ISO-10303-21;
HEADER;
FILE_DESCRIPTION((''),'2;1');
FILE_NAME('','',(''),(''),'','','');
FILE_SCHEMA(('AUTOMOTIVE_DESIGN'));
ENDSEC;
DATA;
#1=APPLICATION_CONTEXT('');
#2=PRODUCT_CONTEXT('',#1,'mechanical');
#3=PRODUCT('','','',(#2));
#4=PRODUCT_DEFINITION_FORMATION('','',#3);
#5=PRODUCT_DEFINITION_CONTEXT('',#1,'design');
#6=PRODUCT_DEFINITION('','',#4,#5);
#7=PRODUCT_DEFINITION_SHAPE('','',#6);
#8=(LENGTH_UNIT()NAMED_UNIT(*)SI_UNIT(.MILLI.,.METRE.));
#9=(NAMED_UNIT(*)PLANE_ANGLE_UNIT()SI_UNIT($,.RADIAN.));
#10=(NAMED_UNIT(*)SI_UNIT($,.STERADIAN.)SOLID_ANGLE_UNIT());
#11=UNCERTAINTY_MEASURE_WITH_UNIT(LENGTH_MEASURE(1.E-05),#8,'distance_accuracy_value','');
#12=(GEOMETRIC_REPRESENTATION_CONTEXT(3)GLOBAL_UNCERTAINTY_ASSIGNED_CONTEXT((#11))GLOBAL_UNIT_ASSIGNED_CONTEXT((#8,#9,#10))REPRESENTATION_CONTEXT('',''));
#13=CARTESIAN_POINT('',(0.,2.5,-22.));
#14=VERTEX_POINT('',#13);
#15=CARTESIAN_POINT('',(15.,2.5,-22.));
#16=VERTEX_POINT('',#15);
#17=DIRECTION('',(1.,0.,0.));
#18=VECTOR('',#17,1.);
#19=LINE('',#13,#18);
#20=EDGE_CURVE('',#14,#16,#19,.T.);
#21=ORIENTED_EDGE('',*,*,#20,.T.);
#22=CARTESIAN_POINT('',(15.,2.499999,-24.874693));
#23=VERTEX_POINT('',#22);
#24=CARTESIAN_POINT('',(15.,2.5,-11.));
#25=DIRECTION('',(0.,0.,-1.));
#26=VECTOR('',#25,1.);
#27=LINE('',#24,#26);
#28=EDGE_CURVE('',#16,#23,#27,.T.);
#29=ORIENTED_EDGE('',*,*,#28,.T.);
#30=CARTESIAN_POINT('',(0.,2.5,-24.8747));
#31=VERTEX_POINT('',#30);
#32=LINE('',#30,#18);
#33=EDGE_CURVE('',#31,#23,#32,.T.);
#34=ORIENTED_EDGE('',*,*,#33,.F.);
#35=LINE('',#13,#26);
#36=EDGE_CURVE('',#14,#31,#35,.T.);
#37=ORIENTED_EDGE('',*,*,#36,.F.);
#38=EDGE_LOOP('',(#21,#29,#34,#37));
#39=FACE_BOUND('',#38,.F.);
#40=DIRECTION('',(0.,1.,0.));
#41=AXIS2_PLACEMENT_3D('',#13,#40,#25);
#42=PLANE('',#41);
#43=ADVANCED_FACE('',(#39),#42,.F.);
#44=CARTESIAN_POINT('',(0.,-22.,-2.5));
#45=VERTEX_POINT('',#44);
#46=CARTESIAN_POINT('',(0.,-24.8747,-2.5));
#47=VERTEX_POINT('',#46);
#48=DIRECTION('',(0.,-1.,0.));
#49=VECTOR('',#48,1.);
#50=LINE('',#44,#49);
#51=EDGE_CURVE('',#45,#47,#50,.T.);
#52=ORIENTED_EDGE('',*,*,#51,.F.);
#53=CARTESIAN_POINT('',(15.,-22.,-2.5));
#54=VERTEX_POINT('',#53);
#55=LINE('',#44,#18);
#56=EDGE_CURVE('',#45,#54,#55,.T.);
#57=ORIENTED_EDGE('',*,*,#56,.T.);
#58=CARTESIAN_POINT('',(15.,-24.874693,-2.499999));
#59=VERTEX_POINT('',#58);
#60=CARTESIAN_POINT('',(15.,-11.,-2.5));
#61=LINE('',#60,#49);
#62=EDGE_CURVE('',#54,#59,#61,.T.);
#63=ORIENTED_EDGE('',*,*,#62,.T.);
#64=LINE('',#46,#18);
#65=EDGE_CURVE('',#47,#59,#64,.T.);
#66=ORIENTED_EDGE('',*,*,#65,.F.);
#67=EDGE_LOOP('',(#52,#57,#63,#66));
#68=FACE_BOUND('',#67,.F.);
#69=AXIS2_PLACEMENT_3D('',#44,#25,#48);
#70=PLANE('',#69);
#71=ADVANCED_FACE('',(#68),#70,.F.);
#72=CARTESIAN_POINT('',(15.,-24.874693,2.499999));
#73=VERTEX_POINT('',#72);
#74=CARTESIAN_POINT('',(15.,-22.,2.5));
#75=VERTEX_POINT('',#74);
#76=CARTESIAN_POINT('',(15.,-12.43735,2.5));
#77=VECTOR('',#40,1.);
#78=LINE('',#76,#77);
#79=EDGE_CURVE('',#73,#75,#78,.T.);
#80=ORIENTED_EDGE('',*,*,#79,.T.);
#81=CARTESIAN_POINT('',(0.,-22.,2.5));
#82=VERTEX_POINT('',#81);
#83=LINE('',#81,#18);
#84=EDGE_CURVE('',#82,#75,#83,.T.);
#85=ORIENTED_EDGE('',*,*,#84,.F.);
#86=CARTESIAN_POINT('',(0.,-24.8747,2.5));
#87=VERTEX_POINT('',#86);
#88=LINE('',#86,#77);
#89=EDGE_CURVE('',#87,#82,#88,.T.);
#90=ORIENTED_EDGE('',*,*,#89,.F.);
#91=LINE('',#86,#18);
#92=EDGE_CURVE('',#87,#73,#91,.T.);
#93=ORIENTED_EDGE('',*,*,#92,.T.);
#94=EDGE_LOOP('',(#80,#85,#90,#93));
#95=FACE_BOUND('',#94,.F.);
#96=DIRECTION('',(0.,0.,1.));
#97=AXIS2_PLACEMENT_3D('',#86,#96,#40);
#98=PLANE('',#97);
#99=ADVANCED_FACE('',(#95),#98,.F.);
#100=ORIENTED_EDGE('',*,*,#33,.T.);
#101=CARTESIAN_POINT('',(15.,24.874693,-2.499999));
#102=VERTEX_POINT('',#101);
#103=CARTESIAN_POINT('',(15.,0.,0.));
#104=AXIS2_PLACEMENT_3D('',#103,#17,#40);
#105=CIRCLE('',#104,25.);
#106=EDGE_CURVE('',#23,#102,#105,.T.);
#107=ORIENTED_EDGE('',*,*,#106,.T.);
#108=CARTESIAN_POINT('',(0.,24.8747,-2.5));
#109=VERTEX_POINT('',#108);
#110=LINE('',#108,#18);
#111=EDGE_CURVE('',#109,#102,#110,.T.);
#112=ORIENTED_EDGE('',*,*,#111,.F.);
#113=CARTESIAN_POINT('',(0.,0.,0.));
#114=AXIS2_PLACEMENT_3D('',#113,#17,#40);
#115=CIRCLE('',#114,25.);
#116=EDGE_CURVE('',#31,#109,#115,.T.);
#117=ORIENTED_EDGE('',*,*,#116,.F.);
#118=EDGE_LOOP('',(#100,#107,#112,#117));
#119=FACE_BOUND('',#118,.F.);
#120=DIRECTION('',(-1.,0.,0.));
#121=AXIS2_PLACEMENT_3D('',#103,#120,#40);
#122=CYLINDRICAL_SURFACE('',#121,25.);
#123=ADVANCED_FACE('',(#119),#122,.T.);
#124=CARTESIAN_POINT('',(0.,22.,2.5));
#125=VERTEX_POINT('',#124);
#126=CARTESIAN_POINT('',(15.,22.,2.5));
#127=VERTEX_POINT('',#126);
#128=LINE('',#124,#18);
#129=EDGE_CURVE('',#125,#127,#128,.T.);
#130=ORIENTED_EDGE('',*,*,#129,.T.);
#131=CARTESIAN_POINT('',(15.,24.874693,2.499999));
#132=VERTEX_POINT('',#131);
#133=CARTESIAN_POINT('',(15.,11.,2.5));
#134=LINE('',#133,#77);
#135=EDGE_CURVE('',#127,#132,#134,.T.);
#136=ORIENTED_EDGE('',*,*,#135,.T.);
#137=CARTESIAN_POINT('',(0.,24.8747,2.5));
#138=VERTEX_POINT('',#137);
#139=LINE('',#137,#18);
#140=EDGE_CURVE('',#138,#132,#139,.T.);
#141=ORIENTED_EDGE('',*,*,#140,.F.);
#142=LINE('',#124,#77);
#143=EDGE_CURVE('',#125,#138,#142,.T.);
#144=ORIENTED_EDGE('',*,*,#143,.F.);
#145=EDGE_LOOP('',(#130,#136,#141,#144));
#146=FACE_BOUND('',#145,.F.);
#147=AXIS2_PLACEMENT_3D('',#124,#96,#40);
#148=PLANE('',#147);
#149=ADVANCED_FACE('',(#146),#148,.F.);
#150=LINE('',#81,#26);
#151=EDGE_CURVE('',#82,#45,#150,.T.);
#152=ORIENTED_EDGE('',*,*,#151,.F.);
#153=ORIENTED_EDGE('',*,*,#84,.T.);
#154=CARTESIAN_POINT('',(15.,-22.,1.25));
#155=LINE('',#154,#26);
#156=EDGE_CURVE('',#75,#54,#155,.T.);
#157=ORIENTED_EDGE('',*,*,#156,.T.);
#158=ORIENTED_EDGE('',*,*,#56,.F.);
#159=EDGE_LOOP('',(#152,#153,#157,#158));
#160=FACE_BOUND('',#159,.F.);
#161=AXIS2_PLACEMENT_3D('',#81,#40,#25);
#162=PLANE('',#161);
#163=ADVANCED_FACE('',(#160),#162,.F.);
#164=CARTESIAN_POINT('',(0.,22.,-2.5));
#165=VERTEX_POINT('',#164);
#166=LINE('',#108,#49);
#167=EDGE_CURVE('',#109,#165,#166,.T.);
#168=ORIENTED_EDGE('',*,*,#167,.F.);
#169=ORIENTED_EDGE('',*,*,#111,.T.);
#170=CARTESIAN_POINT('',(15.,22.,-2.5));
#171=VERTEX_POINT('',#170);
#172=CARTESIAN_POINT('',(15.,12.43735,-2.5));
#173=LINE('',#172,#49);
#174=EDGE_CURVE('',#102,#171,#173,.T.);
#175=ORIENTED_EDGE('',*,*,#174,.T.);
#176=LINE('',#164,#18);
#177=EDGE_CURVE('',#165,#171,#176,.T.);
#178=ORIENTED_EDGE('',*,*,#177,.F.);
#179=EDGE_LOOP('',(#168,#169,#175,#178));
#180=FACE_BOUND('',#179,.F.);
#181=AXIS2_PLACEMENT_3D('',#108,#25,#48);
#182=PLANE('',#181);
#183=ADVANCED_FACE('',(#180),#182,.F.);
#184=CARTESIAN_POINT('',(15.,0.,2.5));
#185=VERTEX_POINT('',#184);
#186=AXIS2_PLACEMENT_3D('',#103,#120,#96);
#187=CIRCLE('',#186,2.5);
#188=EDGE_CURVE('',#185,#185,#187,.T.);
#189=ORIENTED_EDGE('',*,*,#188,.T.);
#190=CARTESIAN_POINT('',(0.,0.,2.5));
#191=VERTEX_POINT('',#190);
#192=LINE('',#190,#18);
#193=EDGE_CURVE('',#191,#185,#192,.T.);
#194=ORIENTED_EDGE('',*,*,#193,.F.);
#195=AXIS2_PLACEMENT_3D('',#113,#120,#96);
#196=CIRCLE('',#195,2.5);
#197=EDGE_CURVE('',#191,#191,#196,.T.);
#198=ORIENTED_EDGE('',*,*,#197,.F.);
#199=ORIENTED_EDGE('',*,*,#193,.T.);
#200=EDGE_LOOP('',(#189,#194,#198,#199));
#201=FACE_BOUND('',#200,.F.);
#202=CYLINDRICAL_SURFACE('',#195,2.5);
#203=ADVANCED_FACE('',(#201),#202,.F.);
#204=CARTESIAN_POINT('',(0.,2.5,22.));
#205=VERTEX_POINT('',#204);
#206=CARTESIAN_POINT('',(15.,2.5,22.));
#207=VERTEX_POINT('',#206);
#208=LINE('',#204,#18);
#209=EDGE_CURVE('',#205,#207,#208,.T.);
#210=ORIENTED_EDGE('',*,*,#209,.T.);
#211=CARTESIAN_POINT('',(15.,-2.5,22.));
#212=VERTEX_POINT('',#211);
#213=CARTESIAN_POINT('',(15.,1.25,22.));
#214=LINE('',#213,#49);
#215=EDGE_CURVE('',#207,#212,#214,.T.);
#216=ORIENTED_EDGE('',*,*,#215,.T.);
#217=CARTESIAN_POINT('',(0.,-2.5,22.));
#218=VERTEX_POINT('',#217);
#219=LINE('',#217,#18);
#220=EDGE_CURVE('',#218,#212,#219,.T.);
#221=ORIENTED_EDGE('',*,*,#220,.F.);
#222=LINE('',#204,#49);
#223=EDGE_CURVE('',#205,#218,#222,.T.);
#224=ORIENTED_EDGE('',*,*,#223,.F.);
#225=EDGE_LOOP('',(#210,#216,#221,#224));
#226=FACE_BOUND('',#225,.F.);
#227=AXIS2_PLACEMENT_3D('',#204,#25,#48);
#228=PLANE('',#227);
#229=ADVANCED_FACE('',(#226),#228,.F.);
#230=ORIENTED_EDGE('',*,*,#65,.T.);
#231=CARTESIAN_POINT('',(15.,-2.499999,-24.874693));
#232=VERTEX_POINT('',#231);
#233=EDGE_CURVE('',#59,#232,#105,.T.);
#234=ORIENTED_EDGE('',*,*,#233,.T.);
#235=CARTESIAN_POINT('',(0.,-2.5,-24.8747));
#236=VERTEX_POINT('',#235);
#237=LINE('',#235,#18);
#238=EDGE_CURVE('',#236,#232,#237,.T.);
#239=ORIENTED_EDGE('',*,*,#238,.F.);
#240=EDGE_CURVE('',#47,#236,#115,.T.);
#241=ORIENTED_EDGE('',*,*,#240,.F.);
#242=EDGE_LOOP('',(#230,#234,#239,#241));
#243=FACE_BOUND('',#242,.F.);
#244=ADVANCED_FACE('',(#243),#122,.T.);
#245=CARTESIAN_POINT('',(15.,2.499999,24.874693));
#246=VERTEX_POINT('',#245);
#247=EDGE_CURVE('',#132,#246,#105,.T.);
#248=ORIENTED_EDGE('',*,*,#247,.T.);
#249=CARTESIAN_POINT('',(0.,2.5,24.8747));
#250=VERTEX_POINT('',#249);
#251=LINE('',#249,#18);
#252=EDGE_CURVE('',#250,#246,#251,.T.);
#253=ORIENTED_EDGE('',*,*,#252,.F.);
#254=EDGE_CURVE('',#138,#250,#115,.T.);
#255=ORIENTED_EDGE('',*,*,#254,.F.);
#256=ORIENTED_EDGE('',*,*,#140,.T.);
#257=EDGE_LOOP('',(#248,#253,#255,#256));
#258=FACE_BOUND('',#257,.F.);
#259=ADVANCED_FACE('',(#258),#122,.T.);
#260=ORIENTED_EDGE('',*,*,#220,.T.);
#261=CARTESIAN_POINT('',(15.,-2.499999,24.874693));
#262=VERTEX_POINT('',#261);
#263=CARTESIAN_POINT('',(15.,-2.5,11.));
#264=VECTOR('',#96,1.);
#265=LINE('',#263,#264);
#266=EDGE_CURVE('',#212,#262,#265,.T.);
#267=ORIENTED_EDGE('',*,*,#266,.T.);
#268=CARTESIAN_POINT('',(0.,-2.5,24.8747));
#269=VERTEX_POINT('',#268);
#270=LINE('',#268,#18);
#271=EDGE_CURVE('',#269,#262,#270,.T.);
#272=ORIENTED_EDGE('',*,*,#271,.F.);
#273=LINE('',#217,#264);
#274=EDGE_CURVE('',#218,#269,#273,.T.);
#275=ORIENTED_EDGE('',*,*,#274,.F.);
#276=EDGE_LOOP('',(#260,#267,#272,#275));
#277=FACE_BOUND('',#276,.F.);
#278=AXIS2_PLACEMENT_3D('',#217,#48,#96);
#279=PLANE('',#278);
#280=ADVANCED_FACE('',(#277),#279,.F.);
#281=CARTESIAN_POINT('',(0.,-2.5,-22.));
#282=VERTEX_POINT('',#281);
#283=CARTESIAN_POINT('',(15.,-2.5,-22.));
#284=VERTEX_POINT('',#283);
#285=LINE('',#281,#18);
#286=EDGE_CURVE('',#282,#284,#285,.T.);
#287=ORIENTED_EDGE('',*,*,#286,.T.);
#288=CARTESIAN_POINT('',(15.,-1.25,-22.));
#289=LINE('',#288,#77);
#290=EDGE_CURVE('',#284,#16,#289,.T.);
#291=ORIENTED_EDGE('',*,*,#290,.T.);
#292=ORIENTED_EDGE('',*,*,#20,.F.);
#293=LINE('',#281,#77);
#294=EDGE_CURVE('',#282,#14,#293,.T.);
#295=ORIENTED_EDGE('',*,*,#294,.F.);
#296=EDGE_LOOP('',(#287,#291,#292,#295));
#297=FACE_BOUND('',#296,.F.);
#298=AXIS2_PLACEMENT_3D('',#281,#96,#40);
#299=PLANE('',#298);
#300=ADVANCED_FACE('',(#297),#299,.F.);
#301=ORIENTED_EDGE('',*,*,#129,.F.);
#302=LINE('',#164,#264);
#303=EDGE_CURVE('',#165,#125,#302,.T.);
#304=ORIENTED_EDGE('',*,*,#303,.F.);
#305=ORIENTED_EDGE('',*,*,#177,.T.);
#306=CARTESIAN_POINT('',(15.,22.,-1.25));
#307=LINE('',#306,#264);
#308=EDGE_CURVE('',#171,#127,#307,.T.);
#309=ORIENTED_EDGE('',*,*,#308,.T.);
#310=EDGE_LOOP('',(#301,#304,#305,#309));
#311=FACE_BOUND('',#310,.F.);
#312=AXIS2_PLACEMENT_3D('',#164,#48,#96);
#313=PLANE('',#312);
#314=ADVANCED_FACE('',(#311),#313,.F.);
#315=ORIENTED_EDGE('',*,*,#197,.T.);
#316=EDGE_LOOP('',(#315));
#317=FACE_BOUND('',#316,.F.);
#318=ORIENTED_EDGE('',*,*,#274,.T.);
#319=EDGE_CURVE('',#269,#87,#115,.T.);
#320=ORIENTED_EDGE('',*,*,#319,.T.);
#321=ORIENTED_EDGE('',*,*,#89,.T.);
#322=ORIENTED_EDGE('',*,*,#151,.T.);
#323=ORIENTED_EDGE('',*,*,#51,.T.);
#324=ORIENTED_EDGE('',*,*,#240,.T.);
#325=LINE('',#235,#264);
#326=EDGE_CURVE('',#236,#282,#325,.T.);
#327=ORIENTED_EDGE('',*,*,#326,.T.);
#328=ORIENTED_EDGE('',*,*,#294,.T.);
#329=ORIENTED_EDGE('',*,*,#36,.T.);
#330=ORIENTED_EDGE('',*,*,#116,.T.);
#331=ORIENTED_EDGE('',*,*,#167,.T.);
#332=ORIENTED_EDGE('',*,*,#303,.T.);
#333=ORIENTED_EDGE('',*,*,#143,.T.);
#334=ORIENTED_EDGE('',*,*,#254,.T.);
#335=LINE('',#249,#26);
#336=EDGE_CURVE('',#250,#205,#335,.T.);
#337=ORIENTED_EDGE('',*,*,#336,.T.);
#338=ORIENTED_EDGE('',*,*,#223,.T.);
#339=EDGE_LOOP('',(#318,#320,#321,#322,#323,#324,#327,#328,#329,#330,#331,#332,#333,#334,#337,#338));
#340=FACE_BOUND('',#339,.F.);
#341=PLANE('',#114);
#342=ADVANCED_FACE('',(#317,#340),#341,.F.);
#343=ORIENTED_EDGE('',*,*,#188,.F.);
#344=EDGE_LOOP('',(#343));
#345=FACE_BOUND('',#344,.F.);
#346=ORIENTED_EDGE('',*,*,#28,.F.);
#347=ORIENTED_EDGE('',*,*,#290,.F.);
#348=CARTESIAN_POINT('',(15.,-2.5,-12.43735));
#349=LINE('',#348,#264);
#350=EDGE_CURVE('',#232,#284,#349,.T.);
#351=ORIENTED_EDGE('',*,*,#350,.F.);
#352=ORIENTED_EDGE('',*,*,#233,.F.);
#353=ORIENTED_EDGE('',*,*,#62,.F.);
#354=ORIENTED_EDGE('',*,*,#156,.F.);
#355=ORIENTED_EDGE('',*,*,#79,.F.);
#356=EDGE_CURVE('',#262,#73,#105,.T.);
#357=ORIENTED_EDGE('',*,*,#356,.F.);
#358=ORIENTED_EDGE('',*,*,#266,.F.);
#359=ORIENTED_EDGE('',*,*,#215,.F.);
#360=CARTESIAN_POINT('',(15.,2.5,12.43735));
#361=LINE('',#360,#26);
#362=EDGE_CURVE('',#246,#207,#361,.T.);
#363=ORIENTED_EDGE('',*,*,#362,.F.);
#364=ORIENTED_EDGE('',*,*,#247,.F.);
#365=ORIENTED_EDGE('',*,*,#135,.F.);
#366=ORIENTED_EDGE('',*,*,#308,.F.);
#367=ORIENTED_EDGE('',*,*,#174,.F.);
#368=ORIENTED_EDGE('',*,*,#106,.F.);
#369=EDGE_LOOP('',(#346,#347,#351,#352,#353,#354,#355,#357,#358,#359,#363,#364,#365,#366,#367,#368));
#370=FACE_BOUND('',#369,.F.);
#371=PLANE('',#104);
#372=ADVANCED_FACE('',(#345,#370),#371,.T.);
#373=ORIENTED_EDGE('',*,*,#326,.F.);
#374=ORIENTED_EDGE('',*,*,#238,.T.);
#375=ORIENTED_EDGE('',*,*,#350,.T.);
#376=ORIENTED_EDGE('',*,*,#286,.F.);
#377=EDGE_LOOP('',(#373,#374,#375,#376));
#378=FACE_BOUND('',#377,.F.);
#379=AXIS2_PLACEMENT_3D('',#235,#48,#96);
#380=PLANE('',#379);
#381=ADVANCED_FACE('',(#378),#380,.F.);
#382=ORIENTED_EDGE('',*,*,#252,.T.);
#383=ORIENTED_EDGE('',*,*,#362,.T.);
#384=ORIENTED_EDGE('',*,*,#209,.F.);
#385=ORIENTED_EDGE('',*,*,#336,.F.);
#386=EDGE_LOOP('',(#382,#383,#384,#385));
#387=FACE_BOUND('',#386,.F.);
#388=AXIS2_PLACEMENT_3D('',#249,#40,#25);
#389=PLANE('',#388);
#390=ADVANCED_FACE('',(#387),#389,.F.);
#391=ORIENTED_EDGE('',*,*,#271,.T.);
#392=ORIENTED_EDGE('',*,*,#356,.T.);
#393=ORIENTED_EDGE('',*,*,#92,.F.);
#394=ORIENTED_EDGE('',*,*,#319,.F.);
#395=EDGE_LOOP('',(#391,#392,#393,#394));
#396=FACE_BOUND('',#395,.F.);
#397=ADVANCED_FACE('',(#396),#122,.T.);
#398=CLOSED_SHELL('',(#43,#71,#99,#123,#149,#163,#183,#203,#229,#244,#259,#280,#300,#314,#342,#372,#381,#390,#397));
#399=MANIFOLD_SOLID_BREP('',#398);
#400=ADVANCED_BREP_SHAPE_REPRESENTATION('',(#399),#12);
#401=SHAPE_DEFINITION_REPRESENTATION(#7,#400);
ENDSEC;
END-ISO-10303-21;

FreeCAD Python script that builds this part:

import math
import FreeCAD as App
import Part
import Sketcher

V = App.Vector
Q = App.Units.Quantity


def add_polygon(sketch, points):
    """Adds a closed chain of lines whose ends are joined by coincident constraints."""
    first, n = sketch.GeometryCount, len(points)
    for a, b in zip(points, points[1:] + points[:1]):
        sketch.addGeometry(Part.LineSegment(App.Vector(*a, 0), App.Vector(*b, 0)), False)
    for i in range(n):
        sketch.addConstraint(Sketcher.Constraint("Coincident", first + i, 2, first + (i + 1) % n, 1))

doc = App.newDocument("Part")
params = doc.addObject("Spreadsheet::Sheet", "Params")
for row, (alias, value) in enumerate([
    ("sketch1_width", "15 mm"),
    ("sketch1_height", "25 mm"),
    ("revolution_angle", "360 deg"),
    ("sketch2_diameter", "5 mm"),
    ("sketch2_width", "5 mm"),
    ("sketch2_radius", "25 mm"),
], start=1):
    params.set(f"A{row}", alias)
    params.set(f"B{row}", "=" + value)
    params.setAlias(f"B{row}", alias)

body = doc.addObject("PartDesign::Body", "Body")

# Sketch on XY plane
sketch1 = body.newObject("Sketcher::SketchObject", "Sketch")
sketch1.AttachmentSupport = (doc.getObject("XY_Plane"), [""])
sketch1.MapMode = "FlatFace"
add_polygon(sketch1, [(0, 25), (0, 0), (15, 0), (15, 25)])  # lines 0-3
sketch1.addConstraint([
    Sketcher.Constraint("Vertical", 0),
    Sketcher.Constraint("Horizontal", 1),
    Sketcher.Constraint("Vertical", 2),
    Sketcher.Constraint("Horizontal", 3),
    Sketcher.Constraint("Coincident", 0, 2, -1, 1),
    Sketcher.Constraint("DistanceX", 1, 1, 1, 2, Q("15 mm")),
    Sketcher.Constraint("DistanceY", 0, 2, 0, 1, Q("25 mm")),
])
sketch1.setExpression("Constraints[9]", "Params.sketch1_width")
sketch1.setExpression("Constraints[10]", "Params.sketch1_height")
revolution = body.newObject("PartDesign::Revolution", "Revolution")
revolution.Profile = sketch1
revolution.ReferenceAxis = (sketch1, ["H_Axis"])
revolution.setExpression("Angle", "Params.revolution_angle")

# Sketch on YZ plane
sketch2 = body.newObject("Sketcher::SketchObject", "Sketch001")
sketch2.AttachmentSupport = (doc.getObject("YZ_Plane"), [""])
sketch2.MapMode = "FlatFace"
sketch2.addGeometry([
    Part.Circle(V(0, 0, 0), V(0, 0, 1), 2.5),  # 0
    Part.LineSegment(V(2.5, 24.8747, 0), V(2.5, 22, 0)),  # 1
    Part.LineSegment(V(2.5, 22, 0), V(-2.5, 22, 0)),  # 2
    Part.LineSegment(V(-2.5, 22, 0), V(-2.5, 24.8747, 0)),  # 3
    Part.ArcOfCircle(Part.Circle(V(0, 0, 0), V(0, 0, 1), 25), math.radians(84.260833), math.radians(95.739167)),  # 4
    Part.LineSegment(V(22, 2.5, 0), V(24.8747, 2.5, 0)),  # 5
    Part.ArcOfCircle(Part.Circle(V(0, 0, 0), V(0, 0, 1), 25), math.radians(-5.739167), math.radians(5.739167)),  # 6
    Part.LineSegment(V(24.8747, -2.5, 0), V(22, -2.5, 0)),  # 7
    Part.LineSegment(V(22, -2.5, 0), V(22, 2.5, 0)),  # 8
    Part.ArcOfCircle(Part.Circle(V(0, 0, 0), V(0, 0, 1), 25), math.radians(174.260833), math.radians(185.739167)),  # 9
    Part.LineSegment(V(-24.8747, 2.5, 0), V(-22, 2.5, 0)),  # 10
    Part.LineSegment(V(-22, 2.5, 0), V(-22, -2.5, 0)),  # 11
    Part.LineSegment(V(-22, -2.5, 0), V(-24.8747, -2.5, 0)),  # 12
    Part.LineSegment(V(2.5, -22, 0), V(2.5, -24.8747, 0)),  # 13
    Part.ArcOfCircle(Part.Circle(V(0, 0, 0), V(0, 0, 1), 25), math.radians(-95.739167), math.radians(-84.260833)),  # 14
    Part.LineSegment(V(-2.5, -24.8747, 0), V(-2.5, -22, 0)),  # 15
    Part.LineSegment(V(-2.5, -22, 0), V(2.5, -22, 0)),  # 16
], False)
sketch2.addConstraint([
    Sketcher.Constraint("Coincident", 1, 2, 2, 1),
    Sketcher.Constraint("Coincident", 2, 2, 3, 1),
    Sketcher.Constraint("Coincident", 3, 2, 4, 2),
    Sketcher.Constraint("Coincident", 4, 1, 1, 1),
    Sketcher.Constraint("Coincident", 5, 2, 6, 2),
    Sketcher.Constraint("Coincident", 6, 1, 7, 1),
    Sketcher.Constraint("Coincident", 7, 2, 8, 1),
    Sketcher.Constraint("Coincident", 8, 2, 5, 1),
    Sketcher.Constraint("Coincident", 9, 1, 10, 1),
    Sketcher.Constraint("Coincident", 10, 2, 11, 1),
    Sketcher.Constraint("Coincident", 11, 2, 12, 1),
    Sketcher.Constraint("Coincident", 12, 2, 9, 2),
    Sketcher.Constraint("Coincident", 13, 2, 14, 2),
    Sketcher.Constraint("Coincident", 14, 1, 15, 1),
    Sketcher.Constraint("Coincident", 15, 2, 16, 1),
    Sketcher.Constraint("Coincident", 16, 2, 13, 1),
    Sketcher.Constraint("Vertical", 1),
    Sketcher.Constraint("Horizontal", 2),
    Sketcher.Constraint("Vertical", 3),
    Sketcher.Constraint("Horizontal", 5),
    Sketcher.Constraint("Horizontal", 7),
    Sketcher.Constraint("Vertical", 8),
    Sketcher.Constraint("Horizontal", 10),
    Sketcher.Constraint("Vertical", 11),
    Sketcher.Constraint("Horizontal", 12),
    Sketcher.Constraint("Vertical", 13),
    Sketcher.Constraint("Vertical", 15),
    Sketcher.Constraint("Horizontal", 16),
    Sketcher.Constraint("Coincident", 0, 3, -1, 1),
    Sketcher.Constraint("Coincident", 4, 3, -1, 1),
    Sketcher.Constraint("Coincident", 6, 3, -1, 1),
    Sketcher.Constraint("Coincident", 9, 3, -1, 1),
    Sketcher.Constraint("Coincident", 14, 3, -1, 1),
    Sketcher.Constraint("Equal", 4, 6),
    Sketcher.Constraint("Equal", 6, 9),
    Sketcher.Constraint("Equal", 9, 14),
    Sketcher.Constraint("Symmetric", 7, 2, 10, 2, -1, 1),
    Sketcher.Constraint("Symmetric", 1, 2, 15, 2, -1, 1),
    Sketcher.Constraint("Horizontal", 3, 2, 4, 1),
    Sketcher.Constraint("Horizontal", 8, 2, 9, 1),
    Sketcher.Constraint("Horizontal", 7, 2, 11, 2),
    Sketcher.Constraint("Horizontal", 13, 2, 14, 1),
    Sketcher.Constraint("Equal", 12, 1),
    Sketcher.Constraint("Equal", 16, 8),
    Sketcher.Constraint("Diameter", 0, Q("5 mm")),
    Sketcher.Constraint("DistanceX", 2, 2, 2, 1, Q("5 mm")),
    Sketcher.Constraint("DistanceY", -1, 1, 1, 2, Q("22 mm")),
    Sketcher.Constraint("Radius", 4, Q("25 mm")),
])
sketch2.setExpression("Constraints[44]", "Params.sketch2_diameter")
sketch2.setExpression("Constraints[45]", "Params.sketch2_width")
sketch2.setExpression("Constraints[47]", "Params.sketch2_radius")
pocket1 = body.newObject("PartDesign::Pocket", "Pocket")
pocket1.Profile = sketch2
pocket1.Type = "ThroughAll"
pocket1.Reversed = True

doc.recompute()
